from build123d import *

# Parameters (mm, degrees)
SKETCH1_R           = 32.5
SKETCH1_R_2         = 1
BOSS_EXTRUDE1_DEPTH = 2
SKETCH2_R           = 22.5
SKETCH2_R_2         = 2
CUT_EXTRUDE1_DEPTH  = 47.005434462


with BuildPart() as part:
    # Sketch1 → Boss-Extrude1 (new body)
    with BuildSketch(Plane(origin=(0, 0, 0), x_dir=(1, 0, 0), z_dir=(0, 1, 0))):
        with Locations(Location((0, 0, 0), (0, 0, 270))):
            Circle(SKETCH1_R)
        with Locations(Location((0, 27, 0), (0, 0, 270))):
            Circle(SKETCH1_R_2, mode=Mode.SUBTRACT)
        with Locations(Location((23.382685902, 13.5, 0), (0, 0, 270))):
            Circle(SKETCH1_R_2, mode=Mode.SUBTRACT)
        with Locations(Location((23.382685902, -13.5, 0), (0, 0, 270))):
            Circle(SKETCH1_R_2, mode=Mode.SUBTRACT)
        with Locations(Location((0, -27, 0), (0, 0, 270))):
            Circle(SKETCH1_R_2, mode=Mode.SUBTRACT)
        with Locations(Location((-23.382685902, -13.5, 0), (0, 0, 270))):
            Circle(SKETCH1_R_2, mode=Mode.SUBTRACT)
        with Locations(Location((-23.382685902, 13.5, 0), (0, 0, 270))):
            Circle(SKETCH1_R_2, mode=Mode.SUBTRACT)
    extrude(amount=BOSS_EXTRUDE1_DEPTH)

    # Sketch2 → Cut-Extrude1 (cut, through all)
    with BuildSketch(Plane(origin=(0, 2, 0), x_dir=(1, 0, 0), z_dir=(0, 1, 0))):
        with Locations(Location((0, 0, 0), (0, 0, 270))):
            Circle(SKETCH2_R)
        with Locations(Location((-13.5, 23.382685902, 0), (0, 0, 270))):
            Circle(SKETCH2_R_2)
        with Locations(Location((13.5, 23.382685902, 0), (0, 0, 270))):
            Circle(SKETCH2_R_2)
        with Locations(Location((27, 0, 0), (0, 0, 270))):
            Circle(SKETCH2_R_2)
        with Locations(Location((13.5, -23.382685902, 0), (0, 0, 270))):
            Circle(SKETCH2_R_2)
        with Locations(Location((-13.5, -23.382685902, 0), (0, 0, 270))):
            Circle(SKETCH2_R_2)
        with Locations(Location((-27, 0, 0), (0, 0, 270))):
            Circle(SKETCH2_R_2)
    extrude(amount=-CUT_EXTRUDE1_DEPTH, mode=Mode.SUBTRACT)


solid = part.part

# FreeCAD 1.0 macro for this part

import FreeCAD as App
import Part
import Sketcher

V = App.Vector

doc = App.newDocument("Part")
params = doc.addObject("Spreadsheet::Sheet", "Params")
for row, (alias, value) in enumerate([
    ("sketch1_diameter", "65 mm"),
    ("sketch1_diameter2", "2 mm"),
    ("pad1_length", "2 mm"),
    ("sketch2_diameter", "45 mm"),
    ("sketch2_diameter2", "4 mm"),
], start=1):
    params.set(f"A{row}", alias)
    params.set(f"B{row}", "=" + value)
    params.setAlias(f"B{row}", alias)

body = doc.addObject("PartDesign::Body", "Body")

# Sketch on XZ plane
sketch1 = body.newObject("Sketcher::SketchObject", "Sketch")
sketch1.AttachmentSupport = (doc.getObject("XZ_Plane"), [""])
sketch1.MapMode = "FlatFace"
sketch1.addGeometry(Part.Circle(V(0, 0, 0), V(0, 0, 1), 32.5), False)
sketch1.addGeometry(Part.Circle(V(-23.4, -13.5, 0), V(0, 0, 1), 1), False)
sketch1.addGeometry(Part.Circle(V(0, -27, 0), V(0, 0, 1), 1), False)
sketch1.addGeometry(Part.Circle(V(-23.4, 13.5, 0), V(0, 0, 1), 1), False)
sketch1.addGeometry(Part.Circle(V(23.4, -13.5, 0), V(0, 0, 1), 1), False)
sketch1.addGeometry(Part.Circle(V(0, 27, 0), V(0, 0, 1), 1), False)
sketch1.addGeometry(Part.Circle(V(23.4, 13.5, 0), V(0, 0, 1), 1), False)
sketch1.addConstraint(Sketcher.Constraint("Coincident", 0, 3, -1, 1))
sketch1.addConstraint(Sketcher.Constraint("Equal", 1, 2))
sketch1.addConstraint(Sketcher.Constraint("Equal", 2, 3))
sketch1.addConstraint(Sketcher.Constraint("Equal", 3, 4))
sketch1.addConstraint(Sketcher.Constraint("Equal", 4, 5))
sketch1.addConstraint(Sketcher.Constraint("Equal", 5, 6))
sketch1.addConstraint(Sketcher.Constraint("Symmetric", 3, 3, 4, 3, -1, 1))
sketch1.addConstraint(Sketcher.Constraint("Symmetric", 2, 3, 5, 3, -1, 1))
sketch1.addConstraint(Sketcher.Constraint("Symmetric", 1, 3, 6, 3, -1, 1))
sketch1.addConstraint(Sketcher.Constraint("Symmetric", 1, 3, 4, 3, -2))
sketch1.addConstraint(Sketcher.Constraint("PointOnObject", 2, 3, -2))
sketch1.addConstraint(Sketcher.Constraint("Diameter", 0, 65.0))
sketch1.addConstraint(Sketcher.Constraint("Diameter", 1, 2.0))
sketch1.addConstraint(Sketcher.Constraint("DistanceY", 2, 3, -1, 1, 27.0))
sketch1.addConstraint(Sketcher.Constraint("DistanceY", 1, 3, 3, 3, 27.0))
sketch1.addConstraint(Sketcher.Constraint("DistanceX", 1, 3, 4, 3, 46.765372))
sketch1.setExpression("Constraints[11]", "Params.sketch1_diameter")
sketch1.setExpression("Constraints[12]", "Params.sketch1_diameter2")
pad1 = body.newObject("PartDesign::Pad", "Pad")
pad1.Profile = sketch1
pad1.setExpression("Length", "Params.pad1_length")
pad1.Reversed = True

# Sketch on XZ plane
sketch2 = body.newObject("Sketcher::SketchObject", "Sketch001")
sketch2.AttachmentSupport = (doc.getObject("XZ_Plane"), [""])
sketch2.MapMode = "FlatFace"
sketch2.AttachmentOffset = App.Placement(V(0, 0, -2), App.Rotation())
sketch2.addGeometry(Part.Circle(V(0, 0, 0), V(0, 0, 1), 22.5), False)
sketch2.addGeometry(Part.Circle(V(-13.5, -23.4, 0), V(0, 0, 1), 2), False)
sketch2.addGeometry(Part.Circle(V(13.5, -23.4, 0), V(0, 0, 1), 2), False)
sketch2.addGeometry(Part.Circle(V(27, 0, 0), V(0, 0, 1), 2), False)
sketch2.addGeometry(Part.Circle(V(13.5, 23.4, 0), V(0, 0, 1), 2), False)
sketch2.addGeometry(Part.Circle(V(-13.5, 23.4, 0), V(0, 0, 1), 2), False)
sketch2.addGeometry(Part.Circle(V(-27, 0, 0), V(0, 0, 1), 2), False)
sketch2.addConstraint(Sketcher.Constraint("Coincident", 0, 3, -1, 1))
sketch2.addConstraint(Sketcher.Constraint("Equal", 1, 2))
sketch2.addConstraint(Sketcher.Constraint("Equal", 2, 3))
sketch2.addConstraint(Sketcher.Constraint("Equal", 3, 4))
sketch2.addConstraint(Sketcher.Constraint("Equal", 4, 5))
sketch2.addConstraint(Sketcher.Constraint("Equal", 5, 6))
sketch2.addConstraint(Sketcher.Constraint("Symmetric", 1, 3, 4, 3, -1, 1))
sketch2.addConstraint(Sketcher.Constraint("Symmetric", 2, 3, 5, 3, -1, 1))
sketch2.addConstraint(Sketcher.Constraint("Symmetric", 3, 3, 6, 3, -1, 1))
sketch2.addConstraint(Sketcher.Constraint("Symmetric", 1, 3, 2, 3, -2))
sketch2.addConstraint(Sketcher.Constraint("PointOnObject", 3, 3, -1))
sketch2.addConstraint(Sketcher.Constraint("Diameter", 0, 45.0))
sketch2.addConstraint(Sketcher.Constraint("Diameter", 1, 4.0))
sketch2.addConstraint(Sketcher.Constraint("DistanceX", -1, 1, 3, 3, 27.0))
sketch2.addConstraint(Sketcher.Constraint("DistanceX", 1, 3, 2, 3, 27.0))
sketch2.addConstraint(Sketcher.Constraint("DistanceY", 2, 3, 4, 3, 46.765372))
sketch2.setExpression("Constraints[11]", "Params.sketch2_diameter")
sketch2.setExpression("Constraints[12]", "Params.sketch2_diameter2")
pocket1 = body.newObject("PartDesign::Pocket", "Pocket")
pocket1.Profile = sketch2
pocket1.Type = "ThroughAll"
pocket1.Reversed = True

doc.recompute()
